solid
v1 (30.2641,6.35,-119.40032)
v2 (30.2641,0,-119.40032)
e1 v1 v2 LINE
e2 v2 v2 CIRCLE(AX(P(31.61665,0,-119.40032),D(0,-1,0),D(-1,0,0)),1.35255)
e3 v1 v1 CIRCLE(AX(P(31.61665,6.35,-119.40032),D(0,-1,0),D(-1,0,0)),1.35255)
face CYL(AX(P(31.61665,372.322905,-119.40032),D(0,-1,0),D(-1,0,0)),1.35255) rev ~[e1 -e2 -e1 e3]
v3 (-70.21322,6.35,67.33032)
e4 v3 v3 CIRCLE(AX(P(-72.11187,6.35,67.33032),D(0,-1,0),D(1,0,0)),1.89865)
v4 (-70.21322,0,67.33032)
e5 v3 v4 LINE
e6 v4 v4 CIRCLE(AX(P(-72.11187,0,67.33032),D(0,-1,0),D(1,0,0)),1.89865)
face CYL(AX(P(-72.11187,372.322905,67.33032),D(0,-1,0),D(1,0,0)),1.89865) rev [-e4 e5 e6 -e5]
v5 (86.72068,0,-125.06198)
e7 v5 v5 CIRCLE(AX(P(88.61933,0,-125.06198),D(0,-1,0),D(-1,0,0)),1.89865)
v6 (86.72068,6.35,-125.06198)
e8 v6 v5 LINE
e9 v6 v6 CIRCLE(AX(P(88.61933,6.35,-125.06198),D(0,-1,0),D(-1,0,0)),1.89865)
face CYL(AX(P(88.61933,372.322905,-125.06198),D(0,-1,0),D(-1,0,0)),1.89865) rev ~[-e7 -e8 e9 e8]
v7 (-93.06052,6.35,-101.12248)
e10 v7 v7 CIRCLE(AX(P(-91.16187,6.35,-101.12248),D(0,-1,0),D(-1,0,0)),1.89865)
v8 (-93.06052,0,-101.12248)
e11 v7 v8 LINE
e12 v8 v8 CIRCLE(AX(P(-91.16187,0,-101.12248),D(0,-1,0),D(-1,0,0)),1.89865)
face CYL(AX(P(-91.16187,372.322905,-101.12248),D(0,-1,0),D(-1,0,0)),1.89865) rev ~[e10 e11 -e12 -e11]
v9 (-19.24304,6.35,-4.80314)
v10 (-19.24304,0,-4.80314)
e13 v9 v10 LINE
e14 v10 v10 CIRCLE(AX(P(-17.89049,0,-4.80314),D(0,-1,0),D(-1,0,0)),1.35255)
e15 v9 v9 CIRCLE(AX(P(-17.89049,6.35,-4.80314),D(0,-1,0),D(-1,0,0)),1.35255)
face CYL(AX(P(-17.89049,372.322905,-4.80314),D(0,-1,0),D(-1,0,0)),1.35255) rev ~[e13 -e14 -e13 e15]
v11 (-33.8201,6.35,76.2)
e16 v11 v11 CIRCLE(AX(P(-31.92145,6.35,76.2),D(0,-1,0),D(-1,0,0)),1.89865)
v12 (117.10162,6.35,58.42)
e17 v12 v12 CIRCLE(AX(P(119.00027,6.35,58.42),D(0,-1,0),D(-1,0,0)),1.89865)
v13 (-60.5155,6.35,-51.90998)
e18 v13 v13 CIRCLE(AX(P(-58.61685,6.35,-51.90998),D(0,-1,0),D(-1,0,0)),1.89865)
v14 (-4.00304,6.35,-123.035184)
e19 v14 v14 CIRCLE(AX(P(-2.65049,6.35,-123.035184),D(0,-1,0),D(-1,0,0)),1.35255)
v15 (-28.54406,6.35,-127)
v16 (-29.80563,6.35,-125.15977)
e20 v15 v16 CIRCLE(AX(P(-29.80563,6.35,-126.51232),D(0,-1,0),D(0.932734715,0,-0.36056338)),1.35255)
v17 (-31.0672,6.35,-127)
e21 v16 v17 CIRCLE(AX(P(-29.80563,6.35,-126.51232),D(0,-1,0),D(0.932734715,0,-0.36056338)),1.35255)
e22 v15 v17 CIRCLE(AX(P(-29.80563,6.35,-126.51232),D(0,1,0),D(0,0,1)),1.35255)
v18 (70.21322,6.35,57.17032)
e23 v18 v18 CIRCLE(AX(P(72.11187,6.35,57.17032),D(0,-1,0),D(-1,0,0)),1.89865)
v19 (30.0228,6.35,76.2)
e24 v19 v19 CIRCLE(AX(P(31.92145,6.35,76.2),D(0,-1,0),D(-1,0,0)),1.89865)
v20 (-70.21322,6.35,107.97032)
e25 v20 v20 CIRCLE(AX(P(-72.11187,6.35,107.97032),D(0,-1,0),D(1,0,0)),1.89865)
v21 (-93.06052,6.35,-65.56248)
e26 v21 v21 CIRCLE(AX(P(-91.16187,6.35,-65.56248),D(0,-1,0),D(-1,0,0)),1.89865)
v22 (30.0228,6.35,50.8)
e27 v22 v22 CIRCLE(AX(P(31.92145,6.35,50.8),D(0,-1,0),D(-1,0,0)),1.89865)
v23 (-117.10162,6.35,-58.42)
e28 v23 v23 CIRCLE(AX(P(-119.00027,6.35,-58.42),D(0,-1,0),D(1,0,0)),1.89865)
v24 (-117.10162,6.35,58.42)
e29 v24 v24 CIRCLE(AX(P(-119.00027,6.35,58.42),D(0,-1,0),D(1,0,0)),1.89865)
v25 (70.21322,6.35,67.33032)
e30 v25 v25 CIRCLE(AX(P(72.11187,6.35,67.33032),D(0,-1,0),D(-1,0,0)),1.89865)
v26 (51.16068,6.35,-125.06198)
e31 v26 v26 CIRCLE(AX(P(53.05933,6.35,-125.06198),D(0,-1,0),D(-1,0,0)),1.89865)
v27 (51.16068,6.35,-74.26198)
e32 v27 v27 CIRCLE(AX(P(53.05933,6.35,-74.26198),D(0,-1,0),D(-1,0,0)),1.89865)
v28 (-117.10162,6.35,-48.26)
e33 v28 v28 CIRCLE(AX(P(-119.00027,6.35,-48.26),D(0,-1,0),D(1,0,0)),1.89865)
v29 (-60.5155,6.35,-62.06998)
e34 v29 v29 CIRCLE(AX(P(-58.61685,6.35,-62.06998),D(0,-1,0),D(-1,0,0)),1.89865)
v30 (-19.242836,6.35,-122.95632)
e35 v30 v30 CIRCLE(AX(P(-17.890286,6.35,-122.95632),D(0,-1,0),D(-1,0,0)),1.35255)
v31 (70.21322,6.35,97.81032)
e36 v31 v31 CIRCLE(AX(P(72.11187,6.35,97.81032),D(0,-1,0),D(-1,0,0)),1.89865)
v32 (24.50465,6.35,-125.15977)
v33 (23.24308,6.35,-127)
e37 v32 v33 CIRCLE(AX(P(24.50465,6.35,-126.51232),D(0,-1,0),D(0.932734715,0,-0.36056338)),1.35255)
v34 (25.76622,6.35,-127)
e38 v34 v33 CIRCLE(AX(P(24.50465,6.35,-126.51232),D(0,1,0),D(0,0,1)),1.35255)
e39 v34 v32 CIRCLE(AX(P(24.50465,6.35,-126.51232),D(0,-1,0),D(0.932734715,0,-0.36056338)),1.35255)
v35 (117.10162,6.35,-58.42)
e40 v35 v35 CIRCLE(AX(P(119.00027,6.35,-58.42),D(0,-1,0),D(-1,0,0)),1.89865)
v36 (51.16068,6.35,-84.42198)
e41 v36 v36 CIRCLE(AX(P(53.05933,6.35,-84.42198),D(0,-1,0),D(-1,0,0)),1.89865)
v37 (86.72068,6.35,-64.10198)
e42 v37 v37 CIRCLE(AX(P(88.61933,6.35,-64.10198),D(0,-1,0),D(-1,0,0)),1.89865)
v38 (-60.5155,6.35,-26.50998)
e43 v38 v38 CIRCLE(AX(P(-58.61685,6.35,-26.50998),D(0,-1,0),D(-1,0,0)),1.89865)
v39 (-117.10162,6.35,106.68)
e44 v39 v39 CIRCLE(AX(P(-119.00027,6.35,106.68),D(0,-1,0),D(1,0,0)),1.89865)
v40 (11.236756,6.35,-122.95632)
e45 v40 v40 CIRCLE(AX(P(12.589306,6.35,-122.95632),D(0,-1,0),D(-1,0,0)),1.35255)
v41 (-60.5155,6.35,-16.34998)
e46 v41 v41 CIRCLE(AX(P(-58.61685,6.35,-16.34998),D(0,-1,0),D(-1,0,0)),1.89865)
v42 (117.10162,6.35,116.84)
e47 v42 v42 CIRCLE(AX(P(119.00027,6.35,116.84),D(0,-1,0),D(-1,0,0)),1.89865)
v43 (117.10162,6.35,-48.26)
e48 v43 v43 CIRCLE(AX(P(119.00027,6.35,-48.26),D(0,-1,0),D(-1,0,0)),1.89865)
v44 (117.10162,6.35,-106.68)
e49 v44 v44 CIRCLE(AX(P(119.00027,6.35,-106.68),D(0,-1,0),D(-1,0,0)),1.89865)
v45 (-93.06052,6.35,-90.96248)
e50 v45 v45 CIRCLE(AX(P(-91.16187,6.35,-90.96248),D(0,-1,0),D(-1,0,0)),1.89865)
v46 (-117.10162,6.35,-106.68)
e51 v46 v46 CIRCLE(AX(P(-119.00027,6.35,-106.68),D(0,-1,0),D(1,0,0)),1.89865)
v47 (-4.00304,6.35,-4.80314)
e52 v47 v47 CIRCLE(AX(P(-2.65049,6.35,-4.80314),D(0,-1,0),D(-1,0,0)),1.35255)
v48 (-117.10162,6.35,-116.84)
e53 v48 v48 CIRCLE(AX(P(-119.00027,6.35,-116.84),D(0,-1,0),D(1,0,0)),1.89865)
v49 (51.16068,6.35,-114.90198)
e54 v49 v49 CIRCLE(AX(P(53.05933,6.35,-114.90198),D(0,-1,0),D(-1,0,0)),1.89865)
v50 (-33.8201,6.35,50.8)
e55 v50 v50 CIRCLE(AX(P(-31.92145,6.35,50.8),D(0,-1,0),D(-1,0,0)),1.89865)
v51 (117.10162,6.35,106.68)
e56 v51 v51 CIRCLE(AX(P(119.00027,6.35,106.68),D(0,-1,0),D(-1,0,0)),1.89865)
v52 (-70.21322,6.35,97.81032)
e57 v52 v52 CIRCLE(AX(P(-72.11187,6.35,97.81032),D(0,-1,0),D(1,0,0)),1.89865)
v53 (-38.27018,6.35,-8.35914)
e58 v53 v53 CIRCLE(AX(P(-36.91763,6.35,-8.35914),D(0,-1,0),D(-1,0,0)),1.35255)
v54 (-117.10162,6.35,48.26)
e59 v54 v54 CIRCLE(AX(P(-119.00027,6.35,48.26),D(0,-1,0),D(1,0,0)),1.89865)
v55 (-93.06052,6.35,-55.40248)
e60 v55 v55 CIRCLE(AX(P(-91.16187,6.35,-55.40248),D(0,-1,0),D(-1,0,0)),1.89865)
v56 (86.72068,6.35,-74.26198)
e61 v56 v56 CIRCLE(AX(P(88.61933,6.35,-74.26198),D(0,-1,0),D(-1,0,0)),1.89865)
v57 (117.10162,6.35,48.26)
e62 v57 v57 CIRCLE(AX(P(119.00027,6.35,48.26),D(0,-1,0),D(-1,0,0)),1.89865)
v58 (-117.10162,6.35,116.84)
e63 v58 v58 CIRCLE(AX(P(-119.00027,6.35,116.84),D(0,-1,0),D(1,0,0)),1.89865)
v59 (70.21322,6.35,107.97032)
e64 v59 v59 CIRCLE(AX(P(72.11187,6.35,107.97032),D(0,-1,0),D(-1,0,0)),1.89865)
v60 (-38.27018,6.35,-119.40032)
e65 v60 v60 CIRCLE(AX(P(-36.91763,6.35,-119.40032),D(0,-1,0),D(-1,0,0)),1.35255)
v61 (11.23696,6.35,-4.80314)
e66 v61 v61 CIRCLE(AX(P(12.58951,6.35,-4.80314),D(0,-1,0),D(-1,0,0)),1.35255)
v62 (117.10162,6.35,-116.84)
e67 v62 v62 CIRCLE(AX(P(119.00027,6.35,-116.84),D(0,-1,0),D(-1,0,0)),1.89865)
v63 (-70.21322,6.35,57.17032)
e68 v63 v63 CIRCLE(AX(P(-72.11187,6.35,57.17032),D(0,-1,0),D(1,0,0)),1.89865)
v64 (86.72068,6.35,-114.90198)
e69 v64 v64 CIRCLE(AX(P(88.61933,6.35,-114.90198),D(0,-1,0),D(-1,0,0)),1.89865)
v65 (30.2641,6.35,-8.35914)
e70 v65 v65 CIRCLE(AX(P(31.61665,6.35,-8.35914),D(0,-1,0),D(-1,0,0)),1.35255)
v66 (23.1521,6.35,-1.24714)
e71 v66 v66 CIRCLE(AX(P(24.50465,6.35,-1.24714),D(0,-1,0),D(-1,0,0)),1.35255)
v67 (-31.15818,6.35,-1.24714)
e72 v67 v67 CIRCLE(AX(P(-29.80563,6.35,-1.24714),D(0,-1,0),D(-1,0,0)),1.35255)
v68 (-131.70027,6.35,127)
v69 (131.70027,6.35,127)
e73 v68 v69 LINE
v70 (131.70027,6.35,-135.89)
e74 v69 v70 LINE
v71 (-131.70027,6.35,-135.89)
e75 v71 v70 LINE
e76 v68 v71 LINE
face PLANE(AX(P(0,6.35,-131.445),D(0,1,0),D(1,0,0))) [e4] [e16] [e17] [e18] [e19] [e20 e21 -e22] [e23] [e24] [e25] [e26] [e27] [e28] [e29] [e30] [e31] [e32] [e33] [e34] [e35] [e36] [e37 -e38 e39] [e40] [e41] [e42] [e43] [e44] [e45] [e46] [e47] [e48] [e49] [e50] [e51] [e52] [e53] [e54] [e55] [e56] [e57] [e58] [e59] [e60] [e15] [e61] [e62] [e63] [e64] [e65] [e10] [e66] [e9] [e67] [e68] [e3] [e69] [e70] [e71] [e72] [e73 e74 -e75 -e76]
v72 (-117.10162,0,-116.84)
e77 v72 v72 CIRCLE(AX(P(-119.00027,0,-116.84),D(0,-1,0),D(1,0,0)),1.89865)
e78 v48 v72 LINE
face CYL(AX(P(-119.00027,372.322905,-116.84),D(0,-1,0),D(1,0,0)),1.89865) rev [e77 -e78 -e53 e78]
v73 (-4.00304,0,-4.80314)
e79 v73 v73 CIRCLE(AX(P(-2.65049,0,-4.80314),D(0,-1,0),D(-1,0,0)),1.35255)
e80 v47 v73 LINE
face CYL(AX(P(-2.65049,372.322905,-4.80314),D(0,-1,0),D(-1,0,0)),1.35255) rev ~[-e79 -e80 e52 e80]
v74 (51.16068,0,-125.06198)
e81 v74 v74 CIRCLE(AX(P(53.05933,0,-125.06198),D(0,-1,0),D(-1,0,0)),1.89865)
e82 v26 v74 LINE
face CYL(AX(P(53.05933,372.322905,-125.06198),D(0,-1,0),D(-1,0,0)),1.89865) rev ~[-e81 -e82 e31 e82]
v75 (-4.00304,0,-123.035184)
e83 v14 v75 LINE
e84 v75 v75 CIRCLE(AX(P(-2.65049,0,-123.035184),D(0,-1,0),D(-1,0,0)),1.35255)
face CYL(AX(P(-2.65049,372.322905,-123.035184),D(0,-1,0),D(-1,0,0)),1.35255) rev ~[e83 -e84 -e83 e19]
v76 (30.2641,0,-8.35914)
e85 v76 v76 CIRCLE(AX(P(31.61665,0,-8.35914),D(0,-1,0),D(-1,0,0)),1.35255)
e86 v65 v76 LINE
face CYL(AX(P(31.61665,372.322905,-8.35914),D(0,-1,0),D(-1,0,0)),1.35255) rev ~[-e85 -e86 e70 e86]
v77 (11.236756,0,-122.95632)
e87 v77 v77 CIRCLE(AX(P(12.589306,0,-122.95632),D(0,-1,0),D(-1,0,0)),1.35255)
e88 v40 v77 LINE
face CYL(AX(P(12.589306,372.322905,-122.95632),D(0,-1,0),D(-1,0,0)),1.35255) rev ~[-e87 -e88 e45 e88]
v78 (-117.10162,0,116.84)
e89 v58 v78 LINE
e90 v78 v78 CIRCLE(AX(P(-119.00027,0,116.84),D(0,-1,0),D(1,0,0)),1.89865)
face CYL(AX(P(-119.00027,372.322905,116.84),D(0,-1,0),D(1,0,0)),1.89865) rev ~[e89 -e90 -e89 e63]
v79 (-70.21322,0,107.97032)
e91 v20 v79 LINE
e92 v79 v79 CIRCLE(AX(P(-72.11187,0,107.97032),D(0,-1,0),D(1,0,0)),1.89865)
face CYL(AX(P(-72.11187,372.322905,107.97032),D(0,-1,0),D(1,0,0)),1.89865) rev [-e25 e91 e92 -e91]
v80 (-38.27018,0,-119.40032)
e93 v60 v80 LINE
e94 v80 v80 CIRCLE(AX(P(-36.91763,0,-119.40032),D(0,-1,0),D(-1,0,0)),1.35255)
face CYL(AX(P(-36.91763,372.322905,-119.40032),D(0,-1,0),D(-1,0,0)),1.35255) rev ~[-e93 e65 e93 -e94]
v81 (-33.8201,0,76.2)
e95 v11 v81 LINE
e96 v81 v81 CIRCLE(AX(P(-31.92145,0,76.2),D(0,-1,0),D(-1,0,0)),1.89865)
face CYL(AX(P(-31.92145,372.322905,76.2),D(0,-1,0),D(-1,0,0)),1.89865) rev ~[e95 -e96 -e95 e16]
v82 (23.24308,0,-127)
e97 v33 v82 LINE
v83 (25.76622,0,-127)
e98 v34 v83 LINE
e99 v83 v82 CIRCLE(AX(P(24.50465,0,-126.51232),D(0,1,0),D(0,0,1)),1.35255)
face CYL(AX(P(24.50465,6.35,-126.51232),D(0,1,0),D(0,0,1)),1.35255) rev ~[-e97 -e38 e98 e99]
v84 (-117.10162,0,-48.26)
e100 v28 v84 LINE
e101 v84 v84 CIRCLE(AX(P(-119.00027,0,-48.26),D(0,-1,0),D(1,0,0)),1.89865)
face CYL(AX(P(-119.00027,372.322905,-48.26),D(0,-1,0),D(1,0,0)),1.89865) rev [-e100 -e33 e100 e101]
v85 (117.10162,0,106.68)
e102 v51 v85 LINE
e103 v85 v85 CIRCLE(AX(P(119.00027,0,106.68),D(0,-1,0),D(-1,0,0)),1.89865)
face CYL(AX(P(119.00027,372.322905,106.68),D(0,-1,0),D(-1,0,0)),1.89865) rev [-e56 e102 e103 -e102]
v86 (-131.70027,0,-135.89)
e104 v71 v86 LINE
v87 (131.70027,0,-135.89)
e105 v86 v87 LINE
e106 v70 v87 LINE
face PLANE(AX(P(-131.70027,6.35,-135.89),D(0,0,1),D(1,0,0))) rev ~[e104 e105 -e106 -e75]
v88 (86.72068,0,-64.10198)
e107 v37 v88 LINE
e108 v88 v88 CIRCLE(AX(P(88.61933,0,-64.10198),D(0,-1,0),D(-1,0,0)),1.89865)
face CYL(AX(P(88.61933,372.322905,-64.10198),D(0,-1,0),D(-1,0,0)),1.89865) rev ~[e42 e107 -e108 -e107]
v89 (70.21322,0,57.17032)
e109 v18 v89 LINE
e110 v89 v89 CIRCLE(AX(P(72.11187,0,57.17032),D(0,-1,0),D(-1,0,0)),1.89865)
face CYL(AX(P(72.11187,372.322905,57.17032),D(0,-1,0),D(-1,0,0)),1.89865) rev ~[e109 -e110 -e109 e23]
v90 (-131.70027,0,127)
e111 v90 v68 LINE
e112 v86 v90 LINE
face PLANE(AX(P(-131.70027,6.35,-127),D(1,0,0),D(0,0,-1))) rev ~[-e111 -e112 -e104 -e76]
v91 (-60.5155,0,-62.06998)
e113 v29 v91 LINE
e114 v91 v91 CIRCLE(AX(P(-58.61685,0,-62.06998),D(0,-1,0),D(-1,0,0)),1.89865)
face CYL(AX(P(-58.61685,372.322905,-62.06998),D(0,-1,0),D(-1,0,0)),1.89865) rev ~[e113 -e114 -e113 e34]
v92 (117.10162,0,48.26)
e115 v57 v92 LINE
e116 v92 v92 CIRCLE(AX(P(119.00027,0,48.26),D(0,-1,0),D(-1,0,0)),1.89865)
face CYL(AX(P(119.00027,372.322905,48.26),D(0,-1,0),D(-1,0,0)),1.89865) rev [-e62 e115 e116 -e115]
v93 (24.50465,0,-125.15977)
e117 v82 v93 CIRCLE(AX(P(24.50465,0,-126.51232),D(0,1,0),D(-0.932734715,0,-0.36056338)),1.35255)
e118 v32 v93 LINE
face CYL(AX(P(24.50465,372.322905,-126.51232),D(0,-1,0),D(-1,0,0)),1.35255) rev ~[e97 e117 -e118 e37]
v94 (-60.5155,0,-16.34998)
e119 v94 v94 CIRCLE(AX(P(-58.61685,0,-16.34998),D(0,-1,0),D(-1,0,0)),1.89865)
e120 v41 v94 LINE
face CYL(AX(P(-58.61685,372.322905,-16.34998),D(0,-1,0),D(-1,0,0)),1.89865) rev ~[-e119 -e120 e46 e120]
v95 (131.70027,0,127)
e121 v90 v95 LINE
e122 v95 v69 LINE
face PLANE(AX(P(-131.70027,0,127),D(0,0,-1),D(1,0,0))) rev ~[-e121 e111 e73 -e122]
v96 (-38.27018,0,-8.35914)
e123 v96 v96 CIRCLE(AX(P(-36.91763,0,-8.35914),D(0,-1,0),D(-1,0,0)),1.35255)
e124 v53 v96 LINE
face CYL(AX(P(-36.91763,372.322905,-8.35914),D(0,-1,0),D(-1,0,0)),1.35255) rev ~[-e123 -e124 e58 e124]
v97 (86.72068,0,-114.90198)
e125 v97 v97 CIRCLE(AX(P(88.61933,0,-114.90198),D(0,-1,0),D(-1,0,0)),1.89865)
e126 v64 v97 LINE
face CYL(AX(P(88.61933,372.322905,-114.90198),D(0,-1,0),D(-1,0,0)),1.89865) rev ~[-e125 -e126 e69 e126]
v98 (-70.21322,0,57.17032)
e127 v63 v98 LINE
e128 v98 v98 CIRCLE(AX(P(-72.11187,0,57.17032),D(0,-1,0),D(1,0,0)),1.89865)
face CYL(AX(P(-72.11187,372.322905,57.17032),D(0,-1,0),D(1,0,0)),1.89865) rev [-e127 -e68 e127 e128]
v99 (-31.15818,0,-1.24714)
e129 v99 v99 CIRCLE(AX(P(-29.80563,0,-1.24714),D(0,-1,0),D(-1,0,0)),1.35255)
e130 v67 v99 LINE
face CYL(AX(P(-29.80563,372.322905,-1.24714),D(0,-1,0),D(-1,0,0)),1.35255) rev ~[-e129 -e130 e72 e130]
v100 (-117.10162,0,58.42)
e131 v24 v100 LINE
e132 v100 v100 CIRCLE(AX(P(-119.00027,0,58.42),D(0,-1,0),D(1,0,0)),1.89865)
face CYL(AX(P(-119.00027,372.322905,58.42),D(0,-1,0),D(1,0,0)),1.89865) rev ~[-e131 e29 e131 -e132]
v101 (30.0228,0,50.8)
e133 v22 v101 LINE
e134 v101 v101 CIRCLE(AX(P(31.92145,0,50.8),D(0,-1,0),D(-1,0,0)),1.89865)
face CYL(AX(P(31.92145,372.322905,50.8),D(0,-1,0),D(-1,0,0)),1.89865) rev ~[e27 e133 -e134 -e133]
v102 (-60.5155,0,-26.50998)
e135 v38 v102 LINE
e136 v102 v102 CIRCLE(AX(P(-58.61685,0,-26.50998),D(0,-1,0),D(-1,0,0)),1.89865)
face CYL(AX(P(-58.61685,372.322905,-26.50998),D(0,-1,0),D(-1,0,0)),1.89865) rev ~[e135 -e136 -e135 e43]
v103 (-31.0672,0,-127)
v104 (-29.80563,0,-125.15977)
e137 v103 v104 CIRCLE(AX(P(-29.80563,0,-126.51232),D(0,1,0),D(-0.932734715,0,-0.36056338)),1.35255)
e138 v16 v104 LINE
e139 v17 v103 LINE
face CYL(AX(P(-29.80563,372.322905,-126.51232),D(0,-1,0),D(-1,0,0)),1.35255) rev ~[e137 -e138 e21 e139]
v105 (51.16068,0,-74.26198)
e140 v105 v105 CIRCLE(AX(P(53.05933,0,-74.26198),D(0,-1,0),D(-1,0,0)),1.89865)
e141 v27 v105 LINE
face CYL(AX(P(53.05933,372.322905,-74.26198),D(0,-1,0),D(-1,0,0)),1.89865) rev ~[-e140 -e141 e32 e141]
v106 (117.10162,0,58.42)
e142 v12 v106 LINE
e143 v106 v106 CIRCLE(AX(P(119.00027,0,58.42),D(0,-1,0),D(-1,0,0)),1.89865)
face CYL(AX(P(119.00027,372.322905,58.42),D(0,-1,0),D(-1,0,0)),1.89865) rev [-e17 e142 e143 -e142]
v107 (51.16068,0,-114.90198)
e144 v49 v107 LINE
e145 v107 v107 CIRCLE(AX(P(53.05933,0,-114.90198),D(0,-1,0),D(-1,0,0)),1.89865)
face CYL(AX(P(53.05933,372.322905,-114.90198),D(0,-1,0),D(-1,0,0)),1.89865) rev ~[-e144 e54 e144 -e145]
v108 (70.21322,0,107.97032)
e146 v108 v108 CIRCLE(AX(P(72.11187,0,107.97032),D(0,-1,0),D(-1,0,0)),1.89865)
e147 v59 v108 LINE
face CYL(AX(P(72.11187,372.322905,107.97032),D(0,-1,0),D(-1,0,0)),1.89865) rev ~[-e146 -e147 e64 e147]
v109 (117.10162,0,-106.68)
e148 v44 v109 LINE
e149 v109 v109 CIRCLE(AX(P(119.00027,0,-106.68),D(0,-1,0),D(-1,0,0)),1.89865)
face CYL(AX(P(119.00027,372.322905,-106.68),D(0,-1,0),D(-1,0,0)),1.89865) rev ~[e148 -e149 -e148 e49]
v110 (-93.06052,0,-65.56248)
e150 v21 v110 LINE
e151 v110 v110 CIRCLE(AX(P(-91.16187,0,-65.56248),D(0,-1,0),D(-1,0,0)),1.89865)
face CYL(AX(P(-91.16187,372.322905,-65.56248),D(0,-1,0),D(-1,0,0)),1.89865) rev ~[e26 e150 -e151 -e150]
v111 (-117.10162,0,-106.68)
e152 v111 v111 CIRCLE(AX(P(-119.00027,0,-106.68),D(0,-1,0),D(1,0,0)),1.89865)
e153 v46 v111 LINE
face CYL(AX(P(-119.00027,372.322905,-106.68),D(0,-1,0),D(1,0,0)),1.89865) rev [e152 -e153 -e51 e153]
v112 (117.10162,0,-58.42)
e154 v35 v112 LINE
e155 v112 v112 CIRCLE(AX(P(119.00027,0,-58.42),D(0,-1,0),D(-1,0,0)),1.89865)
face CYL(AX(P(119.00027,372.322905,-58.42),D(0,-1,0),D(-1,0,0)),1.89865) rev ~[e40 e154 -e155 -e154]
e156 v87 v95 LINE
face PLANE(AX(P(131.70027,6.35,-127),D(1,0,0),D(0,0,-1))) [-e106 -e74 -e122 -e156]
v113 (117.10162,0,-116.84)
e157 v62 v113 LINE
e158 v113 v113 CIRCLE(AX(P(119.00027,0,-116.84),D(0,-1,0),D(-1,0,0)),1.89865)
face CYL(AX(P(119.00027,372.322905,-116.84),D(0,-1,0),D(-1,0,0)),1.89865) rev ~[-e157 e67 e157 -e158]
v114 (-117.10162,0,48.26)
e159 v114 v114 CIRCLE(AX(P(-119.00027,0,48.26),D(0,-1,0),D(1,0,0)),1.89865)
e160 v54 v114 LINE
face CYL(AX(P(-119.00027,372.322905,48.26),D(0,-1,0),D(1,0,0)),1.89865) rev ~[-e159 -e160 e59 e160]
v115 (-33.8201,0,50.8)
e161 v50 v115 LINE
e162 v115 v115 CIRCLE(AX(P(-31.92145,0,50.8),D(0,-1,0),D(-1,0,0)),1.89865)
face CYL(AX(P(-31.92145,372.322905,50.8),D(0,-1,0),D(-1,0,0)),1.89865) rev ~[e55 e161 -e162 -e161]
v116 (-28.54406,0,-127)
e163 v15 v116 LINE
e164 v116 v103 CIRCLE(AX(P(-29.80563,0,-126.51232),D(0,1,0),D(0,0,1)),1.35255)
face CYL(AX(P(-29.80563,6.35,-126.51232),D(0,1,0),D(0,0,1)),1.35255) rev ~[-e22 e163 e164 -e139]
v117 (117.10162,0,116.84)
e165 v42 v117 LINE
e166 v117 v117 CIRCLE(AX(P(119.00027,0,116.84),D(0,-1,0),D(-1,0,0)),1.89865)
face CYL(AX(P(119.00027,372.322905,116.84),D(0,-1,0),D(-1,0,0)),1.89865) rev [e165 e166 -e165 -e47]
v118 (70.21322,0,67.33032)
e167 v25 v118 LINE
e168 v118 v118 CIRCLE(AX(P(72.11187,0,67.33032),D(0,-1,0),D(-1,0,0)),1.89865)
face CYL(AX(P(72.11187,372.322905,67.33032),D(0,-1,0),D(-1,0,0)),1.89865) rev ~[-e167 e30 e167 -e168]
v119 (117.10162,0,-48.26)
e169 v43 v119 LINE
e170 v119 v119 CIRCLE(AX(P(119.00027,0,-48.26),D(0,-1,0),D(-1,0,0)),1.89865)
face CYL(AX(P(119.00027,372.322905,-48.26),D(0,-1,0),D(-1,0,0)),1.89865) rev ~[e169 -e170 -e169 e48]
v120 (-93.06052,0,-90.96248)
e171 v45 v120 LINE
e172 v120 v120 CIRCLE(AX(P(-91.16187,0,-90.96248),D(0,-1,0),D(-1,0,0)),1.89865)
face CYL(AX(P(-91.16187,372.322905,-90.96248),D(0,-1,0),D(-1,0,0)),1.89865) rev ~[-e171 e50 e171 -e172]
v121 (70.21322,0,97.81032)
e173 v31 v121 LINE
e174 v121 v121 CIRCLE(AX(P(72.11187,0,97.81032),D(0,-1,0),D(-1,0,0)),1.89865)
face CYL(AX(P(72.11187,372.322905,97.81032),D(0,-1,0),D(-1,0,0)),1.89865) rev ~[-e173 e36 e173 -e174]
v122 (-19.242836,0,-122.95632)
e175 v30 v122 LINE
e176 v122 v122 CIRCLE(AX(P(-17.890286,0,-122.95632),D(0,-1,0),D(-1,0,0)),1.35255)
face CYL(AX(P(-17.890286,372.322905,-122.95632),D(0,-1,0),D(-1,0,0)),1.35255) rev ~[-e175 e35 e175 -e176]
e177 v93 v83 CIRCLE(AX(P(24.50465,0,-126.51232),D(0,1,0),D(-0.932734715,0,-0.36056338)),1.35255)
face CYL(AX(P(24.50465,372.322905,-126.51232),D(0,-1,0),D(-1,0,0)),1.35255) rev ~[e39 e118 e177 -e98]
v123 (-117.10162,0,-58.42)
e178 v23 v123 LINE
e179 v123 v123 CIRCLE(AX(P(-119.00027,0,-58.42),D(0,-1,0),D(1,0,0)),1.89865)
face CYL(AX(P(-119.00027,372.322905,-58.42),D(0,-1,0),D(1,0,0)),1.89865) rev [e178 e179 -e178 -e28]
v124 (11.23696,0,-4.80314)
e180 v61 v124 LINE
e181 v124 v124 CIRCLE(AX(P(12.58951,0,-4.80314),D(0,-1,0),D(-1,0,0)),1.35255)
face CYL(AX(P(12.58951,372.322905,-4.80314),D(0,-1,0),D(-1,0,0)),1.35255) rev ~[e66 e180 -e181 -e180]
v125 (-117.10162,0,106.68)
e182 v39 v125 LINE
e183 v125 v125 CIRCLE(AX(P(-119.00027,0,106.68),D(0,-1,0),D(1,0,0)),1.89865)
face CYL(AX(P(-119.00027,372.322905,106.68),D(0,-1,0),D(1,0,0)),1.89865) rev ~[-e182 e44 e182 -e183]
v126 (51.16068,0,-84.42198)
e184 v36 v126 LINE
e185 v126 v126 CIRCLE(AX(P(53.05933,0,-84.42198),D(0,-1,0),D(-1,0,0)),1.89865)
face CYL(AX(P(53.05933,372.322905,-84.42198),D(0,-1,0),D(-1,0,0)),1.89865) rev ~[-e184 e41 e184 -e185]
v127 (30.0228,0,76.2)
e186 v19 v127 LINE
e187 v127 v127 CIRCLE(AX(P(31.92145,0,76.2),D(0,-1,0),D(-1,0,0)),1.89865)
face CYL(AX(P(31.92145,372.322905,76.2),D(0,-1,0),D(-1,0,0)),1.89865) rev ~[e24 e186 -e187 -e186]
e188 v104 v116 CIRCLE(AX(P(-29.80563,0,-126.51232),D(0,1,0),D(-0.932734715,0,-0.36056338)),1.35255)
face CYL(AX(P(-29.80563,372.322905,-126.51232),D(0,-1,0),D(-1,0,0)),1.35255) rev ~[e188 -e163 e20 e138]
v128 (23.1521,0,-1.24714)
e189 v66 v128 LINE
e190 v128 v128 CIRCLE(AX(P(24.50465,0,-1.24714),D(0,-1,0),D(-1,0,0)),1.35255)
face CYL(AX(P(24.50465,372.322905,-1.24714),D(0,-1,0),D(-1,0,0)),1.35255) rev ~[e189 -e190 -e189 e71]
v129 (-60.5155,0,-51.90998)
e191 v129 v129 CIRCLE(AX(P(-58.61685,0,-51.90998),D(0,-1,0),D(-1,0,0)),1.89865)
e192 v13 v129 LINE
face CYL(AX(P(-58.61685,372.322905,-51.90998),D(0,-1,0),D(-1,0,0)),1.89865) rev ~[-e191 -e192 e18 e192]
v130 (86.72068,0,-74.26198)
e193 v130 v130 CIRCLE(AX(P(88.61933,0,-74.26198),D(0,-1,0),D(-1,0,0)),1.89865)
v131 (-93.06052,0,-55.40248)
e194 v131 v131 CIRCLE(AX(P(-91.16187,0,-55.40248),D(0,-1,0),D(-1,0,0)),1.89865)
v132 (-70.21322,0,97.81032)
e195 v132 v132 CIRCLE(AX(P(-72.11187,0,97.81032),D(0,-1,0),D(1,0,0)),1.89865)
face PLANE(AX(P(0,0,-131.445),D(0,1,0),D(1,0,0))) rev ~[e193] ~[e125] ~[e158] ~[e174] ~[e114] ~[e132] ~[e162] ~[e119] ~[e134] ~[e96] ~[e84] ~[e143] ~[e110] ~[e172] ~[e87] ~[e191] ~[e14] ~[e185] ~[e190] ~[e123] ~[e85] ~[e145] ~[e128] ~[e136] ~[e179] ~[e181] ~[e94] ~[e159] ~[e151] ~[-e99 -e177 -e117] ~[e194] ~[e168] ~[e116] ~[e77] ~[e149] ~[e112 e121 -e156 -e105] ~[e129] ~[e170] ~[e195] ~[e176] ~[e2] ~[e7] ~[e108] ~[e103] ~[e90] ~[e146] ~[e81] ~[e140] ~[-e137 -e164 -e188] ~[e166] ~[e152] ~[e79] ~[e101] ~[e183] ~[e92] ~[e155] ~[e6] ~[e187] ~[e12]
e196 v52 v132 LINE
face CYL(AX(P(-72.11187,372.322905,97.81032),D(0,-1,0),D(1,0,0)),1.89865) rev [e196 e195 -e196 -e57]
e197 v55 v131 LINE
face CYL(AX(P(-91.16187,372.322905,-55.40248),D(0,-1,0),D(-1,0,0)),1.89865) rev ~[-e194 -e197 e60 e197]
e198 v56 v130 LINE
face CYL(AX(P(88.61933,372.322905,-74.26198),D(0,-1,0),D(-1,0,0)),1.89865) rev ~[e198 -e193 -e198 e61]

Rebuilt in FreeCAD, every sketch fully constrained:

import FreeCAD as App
import Part
import Sketcher

V = App.Vector
Q = App.Units.Quantity

doc = App.newDocument("Part")
params = doc.addObject("Spreadsheet::Sheet", "Params")
for row, (alias, value) in enumerate([
    ("sketch1_height", "10 in"),
    ("pad1_length", "0.25 in"),
    ("hole_diameter", "0.1495 in"),
    ("hole2_diameter", "0.1495 in"),
    ("hole3_diameter", "0.1495 in"),
    ("hole4_diameter", "0.1495 in"),
    ("hole5_diameter", "0.1495 in"),
    ("hole6_diameter", "0.1495 in"),
    ("hole7_diameter", "0.1495 in"),
    ("hole8_diameter", "0.1065 in"),
    ("hole9_diameter", "0.1065 in"),
    ("hole10_diameter", "0.1065 in"),
    ("hole11_diameter", "0.1495 in"),
    ("sketch13_height", "0.35 in"),
    ("pad2_length", "0.25 in"),
], start=1):
    params.set(f"A{row}", alias)
    params.set(f"B{row}", "=" + value)
    params.setAlias(f"B{row}", alias)

body = doc.addObject("PartDesign::Body", "Body")

sketch1 = body.newObject("Sketcher::SketchObject", "Sketch")
sketch1.AttachmentSupport = (doc.getObject("XZ_Plane"), [""])
sketch1.MapMode = "FlatFace"
sketch1.addGeometry(Part.LineSegment(V(-132, -127, 0), V(-132, 127, 0)), False)
sketch1.addGeometry(Part.LineSegment(V(-132, 127, 0), V(132, 127, 0)), False)
sketch1.addGeometry(Part.LineSegment(V(132, 127, 0), V(132, -127, 0)), False)
sketch1.addGeometry(Part.LineSegment(V(132, -127, 0), V(-132, -127, 0)), False)
sketch1.addConstraint(Sketcher.Constraint("Coincident", 0, 2, 1, 1))
sketch1.addConstraint(Sketcher.Constraint("Coincident", 1, 2, 2, 1))
sketch1.addConstraint(Sketcher.Constraint("Coincident", 2, 2, 3, 1))
sketch1.addConstraint(Sketcher.Constraint("Coincident", 3, 2, 0, 1))
sketch1.addConstraint(Sketcher.Constraint("Vertical", 0))
sketch1.addConstraint(Sketcher.Constraint("Horizontal", 1))
sketch1.addConstraint(Sketcher.Constraint("Vertical", 2))
sketch1.addConstraint(Sketcher.Constraint("Horizontal", 3))
sketch1.addConstraint(Sketcher.Constraint("Symmetric", 0, 2, 2, 2, -1, 1))
sketch1.addConstraint(Sketcher.Constraint("DistanceY", 0, 1, 0, 2, Q("10 in")))
sketch1.addConstraint(Sketcher.Constraint("DistanceX", 1, 1, 1, 2, Q("10.3701 in")))
sketch1.setExpression("Constraints[9]", "Params.sketch1_height")
pad1 = body.newObject("PartDesign::Pad", "Pad")
pad1.Profile = sketch1
pad1.setExpression("Length", "Params.pad1_length")
pad1.Reversed = True

sketch2 = body.newObject("Sketcher::SketchObject", "Sketch001")
sketch2.AttachmentSupport = (doc.getObject("XZ_Plane"), [""])
sketch2.MapMode = "FlatFace"
sketch2.AttachmentOffset = App.Placement(V(0, 0, -0.25 * 25.4), App.Rotation())
sketch2.addGeometry(Part.Circle(V(119.00027, -116.84, 0), V(0, 0, 1), 1.89865), False)
sketch2.addGeometry(Part.Circle(V(119.00027, -106.68, 0), V(0, 0, 1), 1.89865), False)
sketch2.addGeometry(Part.Circle(V(119.00027, -58.42, 0), V(0, 0, 1), 1.89865), False)
sketch2.addGeometry(Part.Circle(V(119.00027, -48.26, 0), V(0, 0, 1), 1.89865), False)
sketch2.addConstraint(Sketcher.Constraint("Equal", 0, 1))
sketch2.addConstraint(Sketcher.Constraint("Equal", 1, 2))
sketch2.addConstraint(Sketcher.Constraint("Equal", 2, 3))
sketch2.addConstraint(Sketcher.Constraint("Vertical", 0, 3, 1, 3))
sketch2.addConstraint(Sketcher.Constraint("Vertical", 1, 3, 2, 3))
sketch2.addConstraint(Sketcher.Constraint("Vertical", 2, 3, 3, 3))
sketch2.addConstraint(Sketcher.Constraint("Diameter", 0, Q("0.1495 in")))
sketch2.addConstraint(Sketcher.Constraint("DistanceY", 0, 3, -1, 1, Q("4.6 in")))
sketch2.addConstraint(Sketcher.Constraint("DistanceY", 1, 3, -1, 1, Q("4.2 in")))
sketch2.addConstraint(Sketcher.Constraint("DistanceY", 2, 3, -1, 1, Q("2.3 in")))
sketch2.addConstraint(Sketcher.Constraint("DistanceY", 3, 3, -1, 1, Q("1.9 in")))
sketch2.addConstraint(Sketcher.Constraint("DistanceX", -1, 1, 0, 3, 119.00027))
doc.recompute()
hole = body.newObject("PartDesign::Hole", "Hole")
hole.Profile = sketch2
hole.ThreadType = "None"
hole.setExpression("Diameter", "Params.hole_diameter")
hole.DepthType = "ThroughAll"
hole.Reversed = True
doc.recompute()

mirrored = body.newObject("PartDesign::Mirrored", "Mirrored")
mirrored.Originals = [hole]
mirrored.MirrorPlane = (doc.getObject("XY_Plane"), [""])
body.Tip = mirrored

sketch3 = body.newObject("Sketcher::SketchObject", "Sketch002")
sketch3.AttachmentSupport = (doc.getObject("XZ_Plane"), [""])
sketch3.MapMode = "FlatFace"
sketch3.AttachmentOffset = App.Placement(V(0, 0, -0.25 * 25.4), App.Rotation())
sketch3.addGeometry(Part.Circle(V(88.6, -125.1, 0), V(0, 0, 1), 1.9), False)
sketch3.addGeometry(Part.Circle(V(88.6, -114.9, 0), V(0, 0, 1), 1.9), False)
sketch3.addGeometry(Part.Circle(V(88.6, -74.3, 0), V(0, 0, 1), 1.9), False)
sketch3.addGeometry(Part.Circle(V(88.6, -64.1, 0), V(0, 0, 1), 1.9), False)
sketch3.addConstraint(Sketcher.Constraint("Equal", 0, 1))
sketch3.addConstraint(Sketcher.Constraint("Equal", 1, 2))
sketch3.addConstraint(Sketcher.Constraint("Equal", 2, 3))
sketch3.addConstraint(Sketcher.Constraint("Vertical", 0, 3, 1, 3))
sketch3.addConstraint(Sketcher.Constraint("Vertical", 1, 3, 2, 3))
sketch3.addConstraint(Sketcher.Constraint("Vertical", 2, 3, 3, 3))
sketch3.addConstraint(Sketcher.Constraint("DistanceY", 0, 3, 2, 3, Q("2 in")))
sketch3.addConstraint(Sketcher.Constraint("DistanceY", 1, 3, 3, 3, Q("2 in")))
sketch3.addConstraint(Sketcher.Constraint("Diameter", 0, Q("0.1495 in")))
sketch3.addConstraint(Sketcher.Constraint("DistanceY", 0, 3, 1, 3, Q("0.4 in")))
sketch3.addConstraint(Sketcher.Constraint("DistanceY", 0, 3, -1, 1, Q("4.9237 in")))
sketch3.addConstraint(Sketcher.Constraint("DistanceX", -1, 1, 0, 3, 88.61933))
doc.recompute()
hole2 = body.newObject("PartDesign::Hole", "Hole001")
hole2.Profile = sketch3
hole2.ThreadType = "None"
hole2.setExpression("Diameter", "Params.hole2_diameter")
hole2.DepthType = "ThroughAll"
hole2.Reversed = True

sketch4 = body.newObject("Sketcher::SketchObject", "Sketch003")
sketch4.AttachmentSupport = (doc.getObject("XZ_Plane"), [""])
sketch4.MapMode = "FlatFace"
sketch4.AttachmentOffset = App.Placement(V(0, 0, -0.25 * 25.4), App.Rotation())
sketch4.addGeometry(Part.Circle(V(53.1, -125.1, 0), V(0, 0, 1), 1.9), False)
sketch4.addGeometry(Part.Circle(V(53.1, -114.9, 0), V(0, 0, 1), 1.9), False)
sketch4.addGeometry(Part.Circle(V(53.1, -84.4, 0), V(0, 0, 1), 1.9), False)
sketch4.addGeometry(Part.Circle(V(53.1, -74.3, 0), V(0, 0, 1), 1.9), False)
sketch4.addConstraint(Sketcher.Constraint("Equal", 0, 1))
sketch4.addConstraint(Sketcher.Constraint("Equal", 1, 2))
sketch4.addConstraint(Sketcher.Constraint("Equal", 2, 3))
sketch4.addConstraint(Sketcher.Constraint("Vertical", 0, 3, 1, 3))
sketch4.addConstraint(Sketcher.Constraint("Vertical", 1, 3, 2, 3))
sketch4.addConstraint(Sketcher.Constraint("Vertical", 2, 3, 3, 3))
sketch4.addConstraint(Sketcher.Constraint("DistanceY", 0, 3, 3, 3, Q("2 in")))
sketch4.addConstraint(Sketcher.Constraint("Diameter", 0, Q("0.1495 in")))
sketch4.addConstraint(Sketcher.Constraint("DistanceY", 0, 3, 1, 3, Q("0.4 in")))
sketch4.addConstraint(Sketcher.Constraint("DistanceY", 1, 3, 2, 3, Q("1.2 in")))
sketch4.addConstraint(Sketcher.Constraint("DistanceY", 0, 3, -1, 1, Q("4.9237 in")))
sketch4.addConstraint(Sketcher.Constraint("DistanceX", -1, 1, 0, 3, 53.05933))
doc.recompute()
hole3 = body.newObject("PartDesign::Hole", "Hole002")
hole3.Profile = sketch4
hole3.ThreadType = "None"
hole3.setExpression("Diameter", "Params.hole3_diameter")
hole3.DepthType = "ThroughAll"
hole3.Reversed = True

sketch5 = body.newObject("Sketcher::SketchObject", "Sketch004")
sketch5.AttachmentSupport = (doc.getObject("XZ_Plane"), [""])
sketch5.MapMode = "FlatFace"
sketch5.AttachmentOffset = App.Placement(V(0, 0, -0.25 * 25.4), App.Rotation())
sketch5.addGeometry(Part.Circle(V(72.1, 57.2, 0), V(0, 0, 1), 1.9), False)
sketch5.addGeometry(Part.Circle(V(72.1, 67.3, 0), V(0, 0, 1), 1.9), False)
sketch5.addGeometry(Part.Circle(V(72.1, 97.8, 0), V(0, 0, 1), 1.9), False)
sketch5.addGeometry(Part.Circle(V(72.1, 108, 0), V(0, 0, 1), 1.9), False)
sketch5.addConstraint(Sketcher.Constraint("Equal", 0, 1))
sketch5.addConstraint(Sketcher.Constraint("Equal", 1, 2))
sketch5.addConstraint(Sketcher.Constraint("Equal", 2, 3))
sketch5.addConstraint(Sketcher.Constraint("Vertical", 0, 3, 1, 3))
sketch5.addConstraint(Sketcher.Constraint("Vertical", 1, 3, 2, 3))
sketch5.addConstraint(Sketcher.Constraint("Vertical", 2, 3, 3, 3))
sketch5.addConstraint(Sketcher.Constraint("DistanceY", 0, 3, 3, 3, Q("2 in")))
sketch5.addConstraint(Sketcher.Constraint("Diameter", 0, Q("0.1495 in")))
sketch5.addConstraint(Sketcher.Constraint("DistanceY", 0, 3, 1, 3, Q("0.4 in")))
sketch5.addConstraint(Sketcher.Constraint("DistanceY", 1, 3, 2, 3, Q("1.2 in")))
sketch5.addConstraint(Sketcher.Constraint("DistanceY", -1, 1, 0, 3, Q("2.2508 in")))
sketch5.addConstraint(Sketcher.Constraint("DistanceX", -1, 1, 0, 3, 72.11187))
doc.recompute()
hole4 = body.newObject("PartDesign::Hole", "Hole003")
hole4.Profile = sketch5
hole4.ThreadType = "None"
hole4.setExpression("Diameter", "Params.hole4_diameter")
hole4.DepthType = "ThroughAll"
hole4.Reversed = True
doc.recompute()

mirrored2 = body.newObject("PartDesign::Mirrored", "Mirrored001")
mirrored2.Originals = [hole, hole4]
mirrored2.MirrorPlane = (doc.getObject("YZ_Plane"), [""])
body.Tip = mirrored2

sketch6 = body.newObject("Sketcher::SketchObject", "Sketch005")
sketch6.AttachmentSupport = (doc.getObject("XZ_Plane"), [""])
sketch6.MapMode = "FlatFace"
sketch6.AttachmentOffset = App.Placement(V(0, 0, -0.25 * 25.4), App.Rotation())
sketch6.addGeometry(Part.Circle(V(-119.00027, 116.84, 0), V(0, 0, 1), 1.89865), False)
sketch6.addGeometry(Part.Circle(V(-119.00027, 106.68, 0), V(0, 0, 1), 1.89865), False)
sketch6.addGeometry(Part.Circle(V(-119.00027, 58.42, 0), V(0, 0, 1), 1.89865), False)
sketch6.addGeometry(Part.Circle(V(-119.00027, 48.26, 0), V(0, 0, 1), 1.89865), False)
sketch6.addConstraint(Sketcher.Constraint("Equal", 0, 1))
sketch6.addConstraint(Sketcher.Constraint("Equal", 1, 2))
sketch6.addConstraint(Sketcher.Constraint("Equal", 2, 3))
sketch6.addConstraint(Sketcher.Constraint("Vertical", 0, 3, 1, 3))
sketch6.addConstraint(Sketcher.Constraint("Vertical", 1, 3, 2, 3))
sketch6.addConstraint(Sketcher.Constraint("Vertical", 2, 3, 3, 3))
sketch6.addConstraint(Sketcher.Constraint("Diameter", 0, Q("0.1495 in")))
sketch6.addConstraint(Sketcher.Constraint("DistanceY", -1, 1, 0, 3, Q("4.6 in")))
sketch6.addConstraint(Sketcher.Constraint("DistanceY", -1, 1, 1, 3, Q("4.2 in")))
sketch6.addConstraint(Sketcher.Constraint("DistanceY", -1, 1, 2, 3, Q("2.3 in")))
sketch6.addConstraint(Sketcher.Constraint("DistanceY", -1, 1, 3, 3, Q("1.9 in")))
sketch6.addConstraint(Sketcher.Constraint("DistanceX", 0, 3, -1, 1, 119.00027))
doc.recompute()
hole5 = body.newObject("PartDesign::Hole", "Hole004")
hole5.Profile = sketch6
hole5.ThreadType = "None"
hole5.setExpression("Diameter", "Params.hole5_diameter")
hole5.DepthType = "ThroughAll"
hole5.Reversed = True

sketch7 = body.newObject("Sketcher::SketchObject", "Sketch006")
sketch7.AttachmentSupport = (doc.getObject("XZ_Plane"), [""])
sketch7.MapMode = "FlatFace"
sketch7.AttachmentOffset = App.Placement(V(0, 0, -0.25 * 25.4), App.Rotation())
sketch7.addGeometry(Part.Circle(V(-91.2, -101.1, 0), V(0, 0, 1), 1.9), False)
sketch7.addGeometry(Part.Circle(V(-91.2, -91, 0), V(0, 0, 1), 1.9), False)
sketch7.addGeometry(Part.Circle(V(-91.2, -65.6, 0), V(0, 0, 1), 1.9), False)
sketch7.addGeometry(Part.Circle(V(-91.2, -55.4, 0), V(0, 0, 1), 1.9), False)
sketch7.addConstraint(Sketcher.Constraint("Equal", 0, 1))
sketch7.addConstraint(Sketcher.Constraint("Equal", 1, 2))
sketch7.addConstraint(Sketcher.Constraint("Equal", 2, 3))
sketch7.addConstraint(Sketcher.Constraint("Vertical", 0, 3, 1, 3))
sketch7.addConstraint(Sketcher.Constraint("Vertical", 1, 3, 2, 3))
sketch7.addConstraint(Sketcher.Constraint("Vertical", 2, 3, 3, 3))
sketch7.addConstraint(Sketcher.Constraint("DistanceY", 1, 3, 2, 3, Q("1 in")))
sketch7.addConstraint(Sketcher.Constraint("Diameter", 0, Q("0.1495 in")))
sketch7.addConstraint(Sketcher.Constraint("DistanceY", 0, 3, 1, 3, Q("0.4 in")))
sketch7.addConstraint(Sketcher.Constraint("DistanceY", 2, 3, 3, 3, Q("0.4 in")))
sketch7.addConstraint(Sketcher.Constraint("DistanceY", 0, 3, -1, 1, Q("3.9812 in")))
sketch7.addConstraint(Sketcher.Constraint("DistanceX", 0, 3, -1, 1, 91.16187))
doc.recompute()
hole6 = body.newObject("PartDesign::Hole", "Hole005")
hole6.Profile = sketch7
hole6.ThreadType = "None"
hole6.setExpression("Diameter", "Params.hole6_diameter")
hole6.DepthType = "ThroughAll"
hole6.Reversed = True

sketch8 = body.newObject("Sketcher::SketchObject", "Sketch007")
sketch8.AttachmentSupport = (doc.getObject("XZ_Plane"), [""])
sketch8.MapMode = "FlatFace"
sketch8.AttachmentOffset = App.Placement(V(0, 0, -0.25 * 25.4), App.Rotation())
sketch8.addGeometry(Part.Circle(V(-58.6, -62.1, 0), V(0, 0, 1), 1.9), False)
sketch8.addGeometry(Part.Circle(V(-58.6, -51.9, 0), V(0, 0, 1), 1.9), False)
sketch8.addGeometry(Part.Circle(V(-58.6, -26.5, 0), V(0, 0, 1), 1.9), False)
sketch8.addGeometry(Part.Circle(V(-58.6, -16.3, 0), V(0, 0, 1), 1.9), False)
sketch8.addConstraint(Sketcher.Constraint("Equal", 0, 1))
sketch8.addConstraint(Sketcher.Constraint("Equal", 1, 2))
sketch8.addConstraint(Sketcher.Constraint("Equal", 2, 3))
sketch8.addConstraint(Sketcher.Constraint("Vertical", 0, 3, 1, 3))
sketch8.addConstraint(Sketcher.Constraint("Vertical", 1, 3, 2, 3))
sketch8.addConstraint(Sketcher.Constraint("Vertical", 2, 3, 3, 3))
sketch8.addConstraint(Sketcher.Constraint("DistanceY", 1, 3, 2, 3, Q("1 in")))
sketch8.addConstraint(Sketcher.Constraint("Diameter", 0, Q("0.1495 in")))
sketch8.addConstraint(Sketcher.Constraint("DistanceY", 0, 3, 1, 3, Q("0.4 in")))
sketch8.addConstraint(Sketcher.Constraint("DistanceY", 2, 3, 3, 3, Q("0.4 in")))
sketch8.addConstraint(Sketcher.Constraint("DistanceY", 0, 3, -1, 1, Q("2.4437 in")))
sketch8.addConstraint(Sketcher.Constraint("DistanceX", 0, 3, -1, 1, 58.61685))
doc.recompute()
hole7 = body.newObject("PartDesign::Hole", "Hole006")
hole7.Profile = sketch8
hole7.ThreadType = "None"
hole7.setExpression("Diameter", "Params.hole7_diameter")
hole7.DepthType = "ThroughAll"
hole7.Reversed = True

sketch9 = body.newObject("Sketcher::SketchObject", "Sketch008")
sketch9.AttachmentSupport = (doc.getObject("XZ_Plane"), [""])
sketch9.MapMode = "FlatFace"
sketch9.AttachmentOffset = App.Placement(V(0, 0, -0.25 * 25.4), App.Rotation())
sketch9.addGeometry(Part.Circle(V(-36.9, -8.4, 0), V(0, 0, 1), 1.4), False)
sketch9.addGeometry(Part.Circle(V(-29.8, -1.2, 0), V(0, 0, 1), 1.4), False)
sketch9.addConstraint(Sketcher.Constraint("Equal", 0, 1))
sketch9.addConstraint(Sketcher.Constraint("Diameter", 0, Q("0.1065 in")))
sketch9.addConstraint(Sketcher.Constraint("DistanceX", 0, 3, 1, 3, Q("0.28 in")))
sketch9.addConstraint(Sketcher.Constraint("DistanceY", 0, 3, 1, 3, Q("0.28 in")))
sketch9.addConstraint(Sketcher.Constraint("DistanceY", 0, 3, -1, 1, Q("0.3291 in")))
sketch9.addConstraint(Sketcher.Constraint("DistanceX", 0, 3, -1, 1, 36.91763))
doc.recompute()
hole8 = body.newObject("PartDesign::Hole", "Hole007")
hole8.Profile = sketch9
hole8.ThreadType = "None"
hole8.setExpression("Diameter", "Params.hole8_diameter")
hole8.DepthType = "ThroughAll"
hole8.Reversed = True

sketch10 = body.newObject("Sketcher::SketchObject", "Sketch009")
sketch10.AttachmentSupport = (doc.getObject("XZ_Plane"), [""])
sketch10.MapMode = "FlatFace"
sketch10.AttachmentOffset = App.Placement(V(0, 0, -0.25 * 25.4), App.Rotation())
sketch10.addGeometry(Part.Circle(V(-29.8, -126.5, 0), V(0, 0, 1), 1.4), False)
sketch10.addGeometry(Part.Circle(V(-36.9, -119.4, 0), V(0, 0, 1), 1.4), False)
sketch10.addConstraint(Sketcher.Constraint("Equal", 0, 1))
sketch10.addConstraint(Sketcher.Constraint("Diameter", 0, Q("0.1065 in")))
sketch10.addConstraint(Sketcher.Constraint("DistanceX", 1, 3, 0, 3, Q("0.28 in")))
sketch10.addConstraint(Sketcher.Constraint("DistanceY", 0, 3, 1, 3, Q("0.28 in")))
sketch10.addConstraint(Sketcher.Constraint("DistanceY", 0, 3, -1, 1, Q("4.9808 in")))
sketch10.addConstraint(Sketcher.Constraint("DistanceX", 0, 3, -1, 1, 29.80563))
doc.recompute()
hole9 = body.newObject("PartDesign::Hole", "Hole008")
hole9.Profile = sketch10
hole9.ThreadType = "None"
hole9.setExpression("Diameter", "Params.hole9_diameter")
hole9.DepthType = "ThroughAll"
hole9.Reversed = True

sketch11 = body.newObject("Sketcher::SketchObject", "Sketch010")
sketch11.AttachmentSupport = (doc.getObject("XZ_Plane"), [""])
sketch11.MapMode = "FlatFace"
sketch11.AttachmentOffset = App.Placement(V(0, 0, -0.25 * 25.4), App.Rotation())
sketch11.addGeometry(Part.Circle(V(-17.9, -4.8, 0), V(0, 0, 1), 1.4), False)
sketch11.addGeometry(Part.Circle(V(-2.7, -4.8, 0), V(0, 0, 1), 1.4), False)
sketch11.addGeometry(Part.Circle(V(12.6, -4.8, 0), V(0, 0, 1), 1.4), False)
sketch11.addGeometry(Part.Circle(V(-17.9, -123, 0), V(0, 0, 1), 1.4), False)
sketch11.addGeometry(Part.Circle(V(-2.7, -123, 0), V(0, 0, 1), 1.4), False)
sketch11.addGeometry(Part.Circle(V(12.6, -123, 0), V(0, 0, 1), 1.4), False)
sketch11.addGeometry(Part.Circle(V(24.5, -126.5, 0), V(0, 0, 1), 1.4), False)
sketch11.addGeometry(Part.Circle(V(31.6, -119.4, 0), V(0, 0, 1), 1.4), False)
sketch11.addGeometry(Part.Circle(V(24.5, -1.2, 0), V(0, 0, 1), 1.4), False)
sketch11.addGeometry(Part.Circle(V(31.6, -8.4, 0), V(0, 0, 1), 1.4), False)
sketch11.addConstraint(Sketcher.Constraint("Equal", 0, 1))
sketch11.addConstraint(Sketcher.Constraint("Equal", 1, 2))
sketch11.addConstraint(Sketcher.Constraint("Equal", 2, 3))
sketch11.addConstraint(Sketcher.Constraint("Equal", 3, 4))
sketch11.addConstraint(Sketcher.Constraint("Equal", 4, 5))
sketch11.addConstraint(Sketcher.Constraint("Equal", 5, 6))
sketch11.addConstraint(Sketcher.Constraint("Equal", 6, 7))
sketch11.addConstraint(Sketcher.Constraint("Equal", 7, 8))
sketch11.addConstraint(Sketcher.Constraint("Equal", 8, 9))
sketch11.addConstraint(Sketcher.Constraint("Horizontal", 0, 3, 1, 3))
sketch11.addConstraint(Sketcher.Constraint("Horizontal", 1, 3, 2, 3))
sketch11.addConstraint(Sketcher.Constraint("Horizontal", 3, 3, 5, 3))
sketch11.addConstraint(Sketcher.Constraint("Vertical", 1, 3, 4, 3))
sketch11.addConstraint(Sketcher.Constraint("Vertical", 6, 3, 8, 3))
sketch11.addConstraint(Sketcher.Constraint("Vertical", 7, 3, 9, 3))
sketch11.addConstraint(Sketcher.Constraint("Diameter", 0, Q("0.1065 in")))
sketch11.addConstraint(Sketcher.Constraint("DistanceX", 0, 3, 1, 3, Q("0.6 in")))
sketch11.addConstraint(Sketcher.Constraint("DistanceX", 1, 3, 2, 3, Q("0.6 in")))
sketch11.addConstraint(Sketcher.Constraint("DistanceY", 6, 3, 5, 3, Q("0.14 in")))
sketch11.addConstraint(Sketcher.Constraint("DistanceX", 6, 3, 7, 3, Q("0.28 in")))
sketch11.addConstraint(Sketcher.Constraint("DistanceY", 6, 3, 7, 3, Q("0.28 in")))
sketch11.addConstraint(Sketcher.Constraint("DistanceY", 2, 3, 8, 3, Q("0.14 in")))
sketch11.addConstraint(Sketcher.Constraint("DistanceY", 9, 3, 8, 3, Q("0.28 in")))
sketch11.addConstraint(Sketcher.Constraint("DistanceY", 0, 3, -1, 1, Q("0.1891 in")))
sketch11.addConstraint(Sketcher.Constraint("DistanceY", 3, 3, -1, 1, Q("4.8408 in")))
sketch11.addConstraint(Sketcher.Constraint("DistanceX", 4, 3, 6, 3, Q("1.0691 in")))
sketch11.addConstraint(Sketcher.Constraint("DistanceX", 0, 3, -1, 1, 17.89049))
sketch11.addConstraint(Sketcher.Constraint("DistanceX", 3, 3, 5, 3, 30.479592))
sketch11.addConstraint(Sketcher.Constraint("DistanceX", 3, 3, -1, 1, 17.890286))
sketch11.addConstraint(Sketcher.Constraint("DistanceY", 4, 3, -1, 1, 123.035184))
doc.recompute()
hole10 = body.newObject("PartDesign::Hole", "Hole009")
hole10.Profile = sketch11
hole10.ThreadType = "None"
hole10.setExpression("Diameter", "Params.hole10_diameter")
hole10.DepthType = "ThroughAll"
hole10.Reversed = True

sketch12 = body.newObject("Sketcher::SketchObject", "Sketch011")
sketch12.AttachmentSupport = (doc.getObject("XZ_Plane"), [""])
sketch12.MapMode = "FlatFace"
sketch12.AttachmentOffset = App.Placement(V(0, 0, -0.25 * 25.4), App.Rotation())
sketch12.addGeometry(Part.Circle(V(-31.9, 50.8, 0), V(0, 0, 1), 1.9), False)
sketch12.addGeometry(Part.Circle(V(-31.9, 76.2, 0), V(0, 0, 1), 1.9), False)
sketch12.addGeometry(Part.Circle(V(31.9, 76.2, 0), V(0, 0, 1), 1.9), False)
sketch12.addGeometry(Part.Circle(V(31.9, 50.8, 0), V(0, 0, 1), 1.9), False)
sketch12.addConstraint(Sketcher.Constraint("Equal", 0, 1))
sketch12.addConstraint(Sketcher.Constraint("Equal", 1, 2))
sketch12.addConstraint(Sketcher.Constraint("Equal", 2, 3))
sketch12.addConstraint(Sketcher.Constraint("Symmetric", 1, 3, 2, 3, -2))
sketch12.addConstraint(Sketcher.Constraint("Symmetric", 0, 3, 3, 3, -2))
sketch12.addConstraint(Sketcher.Constraint("Vertical", 0, 3, 1, 3))
sketch12.addConstraint(Sketcher.Constraint("DistanceY", -1, 1, 0, 3, Q("2 in")))
sketch12.addConstraint(Sketcher.Constraint("DistanceY", -1, 1, 1, 3, Q("3 in")))
sketch12.addConstraint(Sketcher.Constraint("Diameter", 0, Q("0.1495 in")))
sketch12.addConstraint(Sketcher.Constraint("DistanceX", 1, 3, 2, 3, Q("2.5135 in")))
doc.recompute()
hole11 = body.newObject("PartDesign::Hole", "Hole010")
hole11.Profile = sketch12
hole11.ThreadType = "None"
hole11.setExpression("Diameter", "Params.hole11_diameter")
hole11.DepthType = "ThroughAll"
hole11.Reversed = True

sketch13 = body.newObject("Sketcher::SketchObject", "Sketch012")
sketch13.AttachmentSupport = (doc.getObject("XZ_Plane"), [""])
sketch13.MapMode = "FlatFace"
sketch13.AttachmentOffset = App.Placement(V(0, 0, -0.25 * 25.4), App.Rotation())
sketch13.addGeometry(Part.LineSegment(V(-132, -136, 0), V(-132, -127, 0)), False)
sketch13.addGeometry(Part.LineSegment(V(-132, -127, 0), V(132, -127, 0)), False)
sketch13.addGeometry(Part.LineSegment(V(132, -127, 0), V(132, -136, 0)), False)
sketch13.addGeometry(Part.LineSegment(V(132, -136, 0), V(-132, -136, 0)), False)
sketch13.addConstraint(Sketcher.Constraint("Coincident", 0, 2, 1, 1))
sketch13.addConstraint(Sketcher.Constraint("Coincident", 1, 2, 2, 1))
sketch13.addConstraint(Sketcher.Constraint("Coincident", 2, 2, 3, 1))
sketch13.addConstraint(Sketcher.Constraint("Coincident", 3, 2, 0, 1))
sketch13.addConstraint(Sketcher.Constraint("Vertical", 0))
sketch13.addConstraint(Sketcher.Constraint("Horizontal", 1))
sketch13.addConstraint(Sketcher.Constraint("Vertical", 2))
sketch13.addConstraint(Sketcher.Constraint("Horizontal", 3))
sketch13.addConstraint(Sketcher.Constraint("DistanceY", 0, 2, -1, 1, Q("5 in")))
sketch13.addConstraint(Sketcher.Constraint("DistanceY", 0, 1, 0, 2, Q("0.35 in")))
sketch13.addConstraint(Sketcher.Constraint("DistanceX", 1, 1, 1, 2, Q("10.3701 in")))
sketch13.addConstraint(Sketcher.Constraint("DistanceX", 0, 2, -1, 1, 131.70027))
sketch13.setExpression("Constraints[9]", "Params.sketch13_height")
pad2 = body.newObject("PartDesign::Pad", "Pad001")
pad2.Profile = sketch13
pad2.setExpression("Length", "Params.pad2_length")

sketch14 = body.newObject("Sketcher::SketchObject", "Sketch013")
sketch14.AttachmentSupport = (doc.getObject("XZ_Plane"), [""])
sketch14.MapMode = "FlatFace"
sketch14.AttachmentOffset = App.Placement(V(0, 0, -0.25 * 25.4), App.Rotation())
sketch14.addGeometry(Part.Circle(V(-29.8, -126.5, 0), V(0, 0, 1), 1.4), False)
sketch14.addGeometry(Part.Circle(V(24.5, -126.5, 0), V(0, 0, 1), 1.4), False)
sketch14.addConstraint(Sketcher.Constraint("Equal", 0, 1))
sketch14.addConstraint(Sketcher.Constraint("Horizontal", 0, 3, 1, 3))
sketch14.addConstraint(Sketcher.Constraint("Diameter", 0, Q("0.1065 in")))
sketch14.addConstraint(Sketcher.Constraint("DistanceY", 0, 3, -1, 1, Q("4.9808 in")))
sketch14.addConstraint(Sketcher.Constraint("DistanceX", 0, 3, 1, 3, Q("2.1382 in")))
sketch14.addConstraint(Sketcher.Constraint("DistanceX", 0, 3, -1, 1, 29.80563))
pocket1 = body.newObject("PartDesign::Pocket", "Pocket")
pocket1.Profile = sketch14
pocket1.Type = "ThroughAll"
pocket1.Reversed = True

doc.recompute()
